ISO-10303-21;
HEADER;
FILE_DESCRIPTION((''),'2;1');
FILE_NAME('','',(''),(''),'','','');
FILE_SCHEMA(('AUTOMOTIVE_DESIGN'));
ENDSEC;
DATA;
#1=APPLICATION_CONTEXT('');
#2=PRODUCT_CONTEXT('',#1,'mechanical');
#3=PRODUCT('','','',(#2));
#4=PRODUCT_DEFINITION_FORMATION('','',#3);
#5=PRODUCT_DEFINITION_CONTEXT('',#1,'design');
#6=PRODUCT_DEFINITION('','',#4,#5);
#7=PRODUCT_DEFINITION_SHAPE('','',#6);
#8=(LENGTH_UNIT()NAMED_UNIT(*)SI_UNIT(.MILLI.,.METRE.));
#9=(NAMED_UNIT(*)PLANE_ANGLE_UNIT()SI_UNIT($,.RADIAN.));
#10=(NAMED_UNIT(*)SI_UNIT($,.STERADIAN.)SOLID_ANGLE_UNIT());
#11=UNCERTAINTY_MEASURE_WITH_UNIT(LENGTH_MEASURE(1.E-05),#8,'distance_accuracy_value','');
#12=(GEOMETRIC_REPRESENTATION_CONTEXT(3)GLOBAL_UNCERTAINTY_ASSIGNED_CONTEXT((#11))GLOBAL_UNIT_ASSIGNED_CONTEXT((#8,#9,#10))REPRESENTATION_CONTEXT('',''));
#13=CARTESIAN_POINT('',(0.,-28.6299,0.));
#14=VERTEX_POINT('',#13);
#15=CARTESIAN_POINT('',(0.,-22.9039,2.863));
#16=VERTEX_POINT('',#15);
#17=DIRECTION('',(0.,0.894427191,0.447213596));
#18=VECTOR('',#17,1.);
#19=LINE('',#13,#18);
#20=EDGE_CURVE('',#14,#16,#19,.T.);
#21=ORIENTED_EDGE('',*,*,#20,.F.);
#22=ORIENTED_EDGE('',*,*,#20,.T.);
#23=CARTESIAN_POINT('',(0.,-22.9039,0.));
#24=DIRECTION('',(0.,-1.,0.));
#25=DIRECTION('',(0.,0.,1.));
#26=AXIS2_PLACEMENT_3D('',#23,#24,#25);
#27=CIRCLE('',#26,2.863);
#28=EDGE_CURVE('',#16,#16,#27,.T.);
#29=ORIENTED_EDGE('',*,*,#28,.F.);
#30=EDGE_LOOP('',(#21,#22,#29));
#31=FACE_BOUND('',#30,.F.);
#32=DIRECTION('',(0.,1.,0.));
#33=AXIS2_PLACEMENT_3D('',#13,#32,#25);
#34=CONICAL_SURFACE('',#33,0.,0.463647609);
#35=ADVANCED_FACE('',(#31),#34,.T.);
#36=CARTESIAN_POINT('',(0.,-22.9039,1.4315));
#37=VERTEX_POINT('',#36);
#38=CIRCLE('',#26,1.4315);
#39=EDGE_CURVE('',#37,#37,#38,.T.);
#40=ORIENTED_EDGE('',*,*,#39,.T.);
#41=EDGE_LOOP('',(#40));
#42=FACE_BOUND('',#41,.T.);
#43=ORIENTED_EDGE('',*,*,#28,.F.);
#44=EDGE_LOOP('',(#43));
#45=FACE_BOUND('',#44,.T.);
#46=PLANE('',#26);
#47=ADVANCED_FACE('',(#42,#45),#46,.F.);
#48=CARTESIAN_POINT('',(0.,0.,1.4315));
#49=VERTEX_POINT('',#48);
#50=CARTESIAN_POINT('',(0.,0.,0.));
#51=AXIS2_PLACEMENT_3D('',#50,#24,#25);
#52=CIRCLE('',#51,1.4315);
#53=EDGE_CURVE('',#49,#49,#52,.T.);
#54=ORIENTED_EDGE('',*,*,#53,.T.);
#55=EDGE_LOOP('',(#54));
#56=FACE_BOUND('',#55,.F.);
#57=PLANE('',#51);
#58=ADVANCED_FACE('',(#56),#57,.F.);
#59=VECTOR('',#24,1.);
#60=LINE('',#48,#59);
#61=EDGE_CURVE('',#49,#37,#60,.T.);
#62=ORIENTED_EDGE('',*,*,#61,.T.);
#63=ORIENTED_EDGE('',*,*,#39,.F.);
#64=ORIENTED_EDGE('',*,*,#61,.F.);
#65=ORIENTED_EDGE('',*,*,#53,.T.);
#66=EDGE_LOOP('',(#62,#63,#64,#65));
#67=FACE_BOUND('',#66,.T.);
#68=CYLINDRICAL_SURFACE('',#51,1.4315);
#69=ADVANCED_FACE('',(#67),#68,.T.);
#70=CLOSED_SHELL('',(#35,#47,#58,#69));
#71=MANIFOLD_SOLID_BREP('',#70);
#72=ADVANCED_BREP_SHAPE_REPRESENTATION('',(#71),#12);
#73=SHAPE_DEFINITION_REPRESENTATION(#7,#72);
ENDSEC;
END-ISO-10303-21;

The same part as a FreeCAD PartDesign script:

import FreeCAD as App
import Part
import Sketcher


def add_polygon(sketch, points):
    """Adds a closed chain of lines whose ends are joined by coincident constraints."""
    first, n = sketch.GeometryCount, len(points)
    for a, b in zip(points, points[1:] + points[:1]):
        sketch.addGeometry(Part.LineSegment(App.Vector(*a, 0), App.Vector(*b, 0)), False)
    for i in range(n):
        sketch.addConstraint(Sketcher.Constraint("Coincident", first + i, 2, first + (i + 1) % n, 1))

doc = App.newDocument("Part")
body = doc.addObject("PartDesign::Body", "Body")

# Sketch on YZ plane
sketch1 = doc.addObject("Sketcher::SketchObject", "Sketch")
body.addObject(sketch1)
sketch1.AttachmentSupport = (doc.YZ_Plane, [""])
sketch1.MapMode = "FlatFace"
add_polygon(sketch1, [(0, 0), (0, 1.4315), (-22.9039, 1.4315), (-22.9039, 2.863), (-28.6299, 0)])  # lines 0-4
sketch1.addConstraint(Sketcher.Constraint("Vertical", 0))
sketch1.addConstraint(Sketcher.Constraint("Horizontal", 1))
sketch1.addConstraint(Sketcher.Constraint("Vertical", 2))
sketch1.addConstraint(Sketcher.Constraint("Horizontal", 4))
sketch1.addConstraint(Sketcher.Constraint("Coincident", 4, 2, -1, 1))
sketch1.addConstraint(Sketcher.Constraint("Equal", 0, 2))
sketch1.addConstraint(Sketcher.Constraint("DistanceX", 4, 1, 4, 2, 28.63))
sketch1.addConstraint(Sketcher.Constraint("DistanceX", 1, 2, 1, 1, 22.904))
sketch1.addConstraint(Sketcher.Constraint("DistanceY", 0, 1, 0, 2, 1.4315))
revolution = doc.addObject("PartDesign::Revolution", "Revolution")
body.addObject(revolution)
revolution.Profile = sketch1
revolution.ReferenceAxis = (sketch1, ["H_Axis"])
revolution.Angle = 360

doc.recompute()
